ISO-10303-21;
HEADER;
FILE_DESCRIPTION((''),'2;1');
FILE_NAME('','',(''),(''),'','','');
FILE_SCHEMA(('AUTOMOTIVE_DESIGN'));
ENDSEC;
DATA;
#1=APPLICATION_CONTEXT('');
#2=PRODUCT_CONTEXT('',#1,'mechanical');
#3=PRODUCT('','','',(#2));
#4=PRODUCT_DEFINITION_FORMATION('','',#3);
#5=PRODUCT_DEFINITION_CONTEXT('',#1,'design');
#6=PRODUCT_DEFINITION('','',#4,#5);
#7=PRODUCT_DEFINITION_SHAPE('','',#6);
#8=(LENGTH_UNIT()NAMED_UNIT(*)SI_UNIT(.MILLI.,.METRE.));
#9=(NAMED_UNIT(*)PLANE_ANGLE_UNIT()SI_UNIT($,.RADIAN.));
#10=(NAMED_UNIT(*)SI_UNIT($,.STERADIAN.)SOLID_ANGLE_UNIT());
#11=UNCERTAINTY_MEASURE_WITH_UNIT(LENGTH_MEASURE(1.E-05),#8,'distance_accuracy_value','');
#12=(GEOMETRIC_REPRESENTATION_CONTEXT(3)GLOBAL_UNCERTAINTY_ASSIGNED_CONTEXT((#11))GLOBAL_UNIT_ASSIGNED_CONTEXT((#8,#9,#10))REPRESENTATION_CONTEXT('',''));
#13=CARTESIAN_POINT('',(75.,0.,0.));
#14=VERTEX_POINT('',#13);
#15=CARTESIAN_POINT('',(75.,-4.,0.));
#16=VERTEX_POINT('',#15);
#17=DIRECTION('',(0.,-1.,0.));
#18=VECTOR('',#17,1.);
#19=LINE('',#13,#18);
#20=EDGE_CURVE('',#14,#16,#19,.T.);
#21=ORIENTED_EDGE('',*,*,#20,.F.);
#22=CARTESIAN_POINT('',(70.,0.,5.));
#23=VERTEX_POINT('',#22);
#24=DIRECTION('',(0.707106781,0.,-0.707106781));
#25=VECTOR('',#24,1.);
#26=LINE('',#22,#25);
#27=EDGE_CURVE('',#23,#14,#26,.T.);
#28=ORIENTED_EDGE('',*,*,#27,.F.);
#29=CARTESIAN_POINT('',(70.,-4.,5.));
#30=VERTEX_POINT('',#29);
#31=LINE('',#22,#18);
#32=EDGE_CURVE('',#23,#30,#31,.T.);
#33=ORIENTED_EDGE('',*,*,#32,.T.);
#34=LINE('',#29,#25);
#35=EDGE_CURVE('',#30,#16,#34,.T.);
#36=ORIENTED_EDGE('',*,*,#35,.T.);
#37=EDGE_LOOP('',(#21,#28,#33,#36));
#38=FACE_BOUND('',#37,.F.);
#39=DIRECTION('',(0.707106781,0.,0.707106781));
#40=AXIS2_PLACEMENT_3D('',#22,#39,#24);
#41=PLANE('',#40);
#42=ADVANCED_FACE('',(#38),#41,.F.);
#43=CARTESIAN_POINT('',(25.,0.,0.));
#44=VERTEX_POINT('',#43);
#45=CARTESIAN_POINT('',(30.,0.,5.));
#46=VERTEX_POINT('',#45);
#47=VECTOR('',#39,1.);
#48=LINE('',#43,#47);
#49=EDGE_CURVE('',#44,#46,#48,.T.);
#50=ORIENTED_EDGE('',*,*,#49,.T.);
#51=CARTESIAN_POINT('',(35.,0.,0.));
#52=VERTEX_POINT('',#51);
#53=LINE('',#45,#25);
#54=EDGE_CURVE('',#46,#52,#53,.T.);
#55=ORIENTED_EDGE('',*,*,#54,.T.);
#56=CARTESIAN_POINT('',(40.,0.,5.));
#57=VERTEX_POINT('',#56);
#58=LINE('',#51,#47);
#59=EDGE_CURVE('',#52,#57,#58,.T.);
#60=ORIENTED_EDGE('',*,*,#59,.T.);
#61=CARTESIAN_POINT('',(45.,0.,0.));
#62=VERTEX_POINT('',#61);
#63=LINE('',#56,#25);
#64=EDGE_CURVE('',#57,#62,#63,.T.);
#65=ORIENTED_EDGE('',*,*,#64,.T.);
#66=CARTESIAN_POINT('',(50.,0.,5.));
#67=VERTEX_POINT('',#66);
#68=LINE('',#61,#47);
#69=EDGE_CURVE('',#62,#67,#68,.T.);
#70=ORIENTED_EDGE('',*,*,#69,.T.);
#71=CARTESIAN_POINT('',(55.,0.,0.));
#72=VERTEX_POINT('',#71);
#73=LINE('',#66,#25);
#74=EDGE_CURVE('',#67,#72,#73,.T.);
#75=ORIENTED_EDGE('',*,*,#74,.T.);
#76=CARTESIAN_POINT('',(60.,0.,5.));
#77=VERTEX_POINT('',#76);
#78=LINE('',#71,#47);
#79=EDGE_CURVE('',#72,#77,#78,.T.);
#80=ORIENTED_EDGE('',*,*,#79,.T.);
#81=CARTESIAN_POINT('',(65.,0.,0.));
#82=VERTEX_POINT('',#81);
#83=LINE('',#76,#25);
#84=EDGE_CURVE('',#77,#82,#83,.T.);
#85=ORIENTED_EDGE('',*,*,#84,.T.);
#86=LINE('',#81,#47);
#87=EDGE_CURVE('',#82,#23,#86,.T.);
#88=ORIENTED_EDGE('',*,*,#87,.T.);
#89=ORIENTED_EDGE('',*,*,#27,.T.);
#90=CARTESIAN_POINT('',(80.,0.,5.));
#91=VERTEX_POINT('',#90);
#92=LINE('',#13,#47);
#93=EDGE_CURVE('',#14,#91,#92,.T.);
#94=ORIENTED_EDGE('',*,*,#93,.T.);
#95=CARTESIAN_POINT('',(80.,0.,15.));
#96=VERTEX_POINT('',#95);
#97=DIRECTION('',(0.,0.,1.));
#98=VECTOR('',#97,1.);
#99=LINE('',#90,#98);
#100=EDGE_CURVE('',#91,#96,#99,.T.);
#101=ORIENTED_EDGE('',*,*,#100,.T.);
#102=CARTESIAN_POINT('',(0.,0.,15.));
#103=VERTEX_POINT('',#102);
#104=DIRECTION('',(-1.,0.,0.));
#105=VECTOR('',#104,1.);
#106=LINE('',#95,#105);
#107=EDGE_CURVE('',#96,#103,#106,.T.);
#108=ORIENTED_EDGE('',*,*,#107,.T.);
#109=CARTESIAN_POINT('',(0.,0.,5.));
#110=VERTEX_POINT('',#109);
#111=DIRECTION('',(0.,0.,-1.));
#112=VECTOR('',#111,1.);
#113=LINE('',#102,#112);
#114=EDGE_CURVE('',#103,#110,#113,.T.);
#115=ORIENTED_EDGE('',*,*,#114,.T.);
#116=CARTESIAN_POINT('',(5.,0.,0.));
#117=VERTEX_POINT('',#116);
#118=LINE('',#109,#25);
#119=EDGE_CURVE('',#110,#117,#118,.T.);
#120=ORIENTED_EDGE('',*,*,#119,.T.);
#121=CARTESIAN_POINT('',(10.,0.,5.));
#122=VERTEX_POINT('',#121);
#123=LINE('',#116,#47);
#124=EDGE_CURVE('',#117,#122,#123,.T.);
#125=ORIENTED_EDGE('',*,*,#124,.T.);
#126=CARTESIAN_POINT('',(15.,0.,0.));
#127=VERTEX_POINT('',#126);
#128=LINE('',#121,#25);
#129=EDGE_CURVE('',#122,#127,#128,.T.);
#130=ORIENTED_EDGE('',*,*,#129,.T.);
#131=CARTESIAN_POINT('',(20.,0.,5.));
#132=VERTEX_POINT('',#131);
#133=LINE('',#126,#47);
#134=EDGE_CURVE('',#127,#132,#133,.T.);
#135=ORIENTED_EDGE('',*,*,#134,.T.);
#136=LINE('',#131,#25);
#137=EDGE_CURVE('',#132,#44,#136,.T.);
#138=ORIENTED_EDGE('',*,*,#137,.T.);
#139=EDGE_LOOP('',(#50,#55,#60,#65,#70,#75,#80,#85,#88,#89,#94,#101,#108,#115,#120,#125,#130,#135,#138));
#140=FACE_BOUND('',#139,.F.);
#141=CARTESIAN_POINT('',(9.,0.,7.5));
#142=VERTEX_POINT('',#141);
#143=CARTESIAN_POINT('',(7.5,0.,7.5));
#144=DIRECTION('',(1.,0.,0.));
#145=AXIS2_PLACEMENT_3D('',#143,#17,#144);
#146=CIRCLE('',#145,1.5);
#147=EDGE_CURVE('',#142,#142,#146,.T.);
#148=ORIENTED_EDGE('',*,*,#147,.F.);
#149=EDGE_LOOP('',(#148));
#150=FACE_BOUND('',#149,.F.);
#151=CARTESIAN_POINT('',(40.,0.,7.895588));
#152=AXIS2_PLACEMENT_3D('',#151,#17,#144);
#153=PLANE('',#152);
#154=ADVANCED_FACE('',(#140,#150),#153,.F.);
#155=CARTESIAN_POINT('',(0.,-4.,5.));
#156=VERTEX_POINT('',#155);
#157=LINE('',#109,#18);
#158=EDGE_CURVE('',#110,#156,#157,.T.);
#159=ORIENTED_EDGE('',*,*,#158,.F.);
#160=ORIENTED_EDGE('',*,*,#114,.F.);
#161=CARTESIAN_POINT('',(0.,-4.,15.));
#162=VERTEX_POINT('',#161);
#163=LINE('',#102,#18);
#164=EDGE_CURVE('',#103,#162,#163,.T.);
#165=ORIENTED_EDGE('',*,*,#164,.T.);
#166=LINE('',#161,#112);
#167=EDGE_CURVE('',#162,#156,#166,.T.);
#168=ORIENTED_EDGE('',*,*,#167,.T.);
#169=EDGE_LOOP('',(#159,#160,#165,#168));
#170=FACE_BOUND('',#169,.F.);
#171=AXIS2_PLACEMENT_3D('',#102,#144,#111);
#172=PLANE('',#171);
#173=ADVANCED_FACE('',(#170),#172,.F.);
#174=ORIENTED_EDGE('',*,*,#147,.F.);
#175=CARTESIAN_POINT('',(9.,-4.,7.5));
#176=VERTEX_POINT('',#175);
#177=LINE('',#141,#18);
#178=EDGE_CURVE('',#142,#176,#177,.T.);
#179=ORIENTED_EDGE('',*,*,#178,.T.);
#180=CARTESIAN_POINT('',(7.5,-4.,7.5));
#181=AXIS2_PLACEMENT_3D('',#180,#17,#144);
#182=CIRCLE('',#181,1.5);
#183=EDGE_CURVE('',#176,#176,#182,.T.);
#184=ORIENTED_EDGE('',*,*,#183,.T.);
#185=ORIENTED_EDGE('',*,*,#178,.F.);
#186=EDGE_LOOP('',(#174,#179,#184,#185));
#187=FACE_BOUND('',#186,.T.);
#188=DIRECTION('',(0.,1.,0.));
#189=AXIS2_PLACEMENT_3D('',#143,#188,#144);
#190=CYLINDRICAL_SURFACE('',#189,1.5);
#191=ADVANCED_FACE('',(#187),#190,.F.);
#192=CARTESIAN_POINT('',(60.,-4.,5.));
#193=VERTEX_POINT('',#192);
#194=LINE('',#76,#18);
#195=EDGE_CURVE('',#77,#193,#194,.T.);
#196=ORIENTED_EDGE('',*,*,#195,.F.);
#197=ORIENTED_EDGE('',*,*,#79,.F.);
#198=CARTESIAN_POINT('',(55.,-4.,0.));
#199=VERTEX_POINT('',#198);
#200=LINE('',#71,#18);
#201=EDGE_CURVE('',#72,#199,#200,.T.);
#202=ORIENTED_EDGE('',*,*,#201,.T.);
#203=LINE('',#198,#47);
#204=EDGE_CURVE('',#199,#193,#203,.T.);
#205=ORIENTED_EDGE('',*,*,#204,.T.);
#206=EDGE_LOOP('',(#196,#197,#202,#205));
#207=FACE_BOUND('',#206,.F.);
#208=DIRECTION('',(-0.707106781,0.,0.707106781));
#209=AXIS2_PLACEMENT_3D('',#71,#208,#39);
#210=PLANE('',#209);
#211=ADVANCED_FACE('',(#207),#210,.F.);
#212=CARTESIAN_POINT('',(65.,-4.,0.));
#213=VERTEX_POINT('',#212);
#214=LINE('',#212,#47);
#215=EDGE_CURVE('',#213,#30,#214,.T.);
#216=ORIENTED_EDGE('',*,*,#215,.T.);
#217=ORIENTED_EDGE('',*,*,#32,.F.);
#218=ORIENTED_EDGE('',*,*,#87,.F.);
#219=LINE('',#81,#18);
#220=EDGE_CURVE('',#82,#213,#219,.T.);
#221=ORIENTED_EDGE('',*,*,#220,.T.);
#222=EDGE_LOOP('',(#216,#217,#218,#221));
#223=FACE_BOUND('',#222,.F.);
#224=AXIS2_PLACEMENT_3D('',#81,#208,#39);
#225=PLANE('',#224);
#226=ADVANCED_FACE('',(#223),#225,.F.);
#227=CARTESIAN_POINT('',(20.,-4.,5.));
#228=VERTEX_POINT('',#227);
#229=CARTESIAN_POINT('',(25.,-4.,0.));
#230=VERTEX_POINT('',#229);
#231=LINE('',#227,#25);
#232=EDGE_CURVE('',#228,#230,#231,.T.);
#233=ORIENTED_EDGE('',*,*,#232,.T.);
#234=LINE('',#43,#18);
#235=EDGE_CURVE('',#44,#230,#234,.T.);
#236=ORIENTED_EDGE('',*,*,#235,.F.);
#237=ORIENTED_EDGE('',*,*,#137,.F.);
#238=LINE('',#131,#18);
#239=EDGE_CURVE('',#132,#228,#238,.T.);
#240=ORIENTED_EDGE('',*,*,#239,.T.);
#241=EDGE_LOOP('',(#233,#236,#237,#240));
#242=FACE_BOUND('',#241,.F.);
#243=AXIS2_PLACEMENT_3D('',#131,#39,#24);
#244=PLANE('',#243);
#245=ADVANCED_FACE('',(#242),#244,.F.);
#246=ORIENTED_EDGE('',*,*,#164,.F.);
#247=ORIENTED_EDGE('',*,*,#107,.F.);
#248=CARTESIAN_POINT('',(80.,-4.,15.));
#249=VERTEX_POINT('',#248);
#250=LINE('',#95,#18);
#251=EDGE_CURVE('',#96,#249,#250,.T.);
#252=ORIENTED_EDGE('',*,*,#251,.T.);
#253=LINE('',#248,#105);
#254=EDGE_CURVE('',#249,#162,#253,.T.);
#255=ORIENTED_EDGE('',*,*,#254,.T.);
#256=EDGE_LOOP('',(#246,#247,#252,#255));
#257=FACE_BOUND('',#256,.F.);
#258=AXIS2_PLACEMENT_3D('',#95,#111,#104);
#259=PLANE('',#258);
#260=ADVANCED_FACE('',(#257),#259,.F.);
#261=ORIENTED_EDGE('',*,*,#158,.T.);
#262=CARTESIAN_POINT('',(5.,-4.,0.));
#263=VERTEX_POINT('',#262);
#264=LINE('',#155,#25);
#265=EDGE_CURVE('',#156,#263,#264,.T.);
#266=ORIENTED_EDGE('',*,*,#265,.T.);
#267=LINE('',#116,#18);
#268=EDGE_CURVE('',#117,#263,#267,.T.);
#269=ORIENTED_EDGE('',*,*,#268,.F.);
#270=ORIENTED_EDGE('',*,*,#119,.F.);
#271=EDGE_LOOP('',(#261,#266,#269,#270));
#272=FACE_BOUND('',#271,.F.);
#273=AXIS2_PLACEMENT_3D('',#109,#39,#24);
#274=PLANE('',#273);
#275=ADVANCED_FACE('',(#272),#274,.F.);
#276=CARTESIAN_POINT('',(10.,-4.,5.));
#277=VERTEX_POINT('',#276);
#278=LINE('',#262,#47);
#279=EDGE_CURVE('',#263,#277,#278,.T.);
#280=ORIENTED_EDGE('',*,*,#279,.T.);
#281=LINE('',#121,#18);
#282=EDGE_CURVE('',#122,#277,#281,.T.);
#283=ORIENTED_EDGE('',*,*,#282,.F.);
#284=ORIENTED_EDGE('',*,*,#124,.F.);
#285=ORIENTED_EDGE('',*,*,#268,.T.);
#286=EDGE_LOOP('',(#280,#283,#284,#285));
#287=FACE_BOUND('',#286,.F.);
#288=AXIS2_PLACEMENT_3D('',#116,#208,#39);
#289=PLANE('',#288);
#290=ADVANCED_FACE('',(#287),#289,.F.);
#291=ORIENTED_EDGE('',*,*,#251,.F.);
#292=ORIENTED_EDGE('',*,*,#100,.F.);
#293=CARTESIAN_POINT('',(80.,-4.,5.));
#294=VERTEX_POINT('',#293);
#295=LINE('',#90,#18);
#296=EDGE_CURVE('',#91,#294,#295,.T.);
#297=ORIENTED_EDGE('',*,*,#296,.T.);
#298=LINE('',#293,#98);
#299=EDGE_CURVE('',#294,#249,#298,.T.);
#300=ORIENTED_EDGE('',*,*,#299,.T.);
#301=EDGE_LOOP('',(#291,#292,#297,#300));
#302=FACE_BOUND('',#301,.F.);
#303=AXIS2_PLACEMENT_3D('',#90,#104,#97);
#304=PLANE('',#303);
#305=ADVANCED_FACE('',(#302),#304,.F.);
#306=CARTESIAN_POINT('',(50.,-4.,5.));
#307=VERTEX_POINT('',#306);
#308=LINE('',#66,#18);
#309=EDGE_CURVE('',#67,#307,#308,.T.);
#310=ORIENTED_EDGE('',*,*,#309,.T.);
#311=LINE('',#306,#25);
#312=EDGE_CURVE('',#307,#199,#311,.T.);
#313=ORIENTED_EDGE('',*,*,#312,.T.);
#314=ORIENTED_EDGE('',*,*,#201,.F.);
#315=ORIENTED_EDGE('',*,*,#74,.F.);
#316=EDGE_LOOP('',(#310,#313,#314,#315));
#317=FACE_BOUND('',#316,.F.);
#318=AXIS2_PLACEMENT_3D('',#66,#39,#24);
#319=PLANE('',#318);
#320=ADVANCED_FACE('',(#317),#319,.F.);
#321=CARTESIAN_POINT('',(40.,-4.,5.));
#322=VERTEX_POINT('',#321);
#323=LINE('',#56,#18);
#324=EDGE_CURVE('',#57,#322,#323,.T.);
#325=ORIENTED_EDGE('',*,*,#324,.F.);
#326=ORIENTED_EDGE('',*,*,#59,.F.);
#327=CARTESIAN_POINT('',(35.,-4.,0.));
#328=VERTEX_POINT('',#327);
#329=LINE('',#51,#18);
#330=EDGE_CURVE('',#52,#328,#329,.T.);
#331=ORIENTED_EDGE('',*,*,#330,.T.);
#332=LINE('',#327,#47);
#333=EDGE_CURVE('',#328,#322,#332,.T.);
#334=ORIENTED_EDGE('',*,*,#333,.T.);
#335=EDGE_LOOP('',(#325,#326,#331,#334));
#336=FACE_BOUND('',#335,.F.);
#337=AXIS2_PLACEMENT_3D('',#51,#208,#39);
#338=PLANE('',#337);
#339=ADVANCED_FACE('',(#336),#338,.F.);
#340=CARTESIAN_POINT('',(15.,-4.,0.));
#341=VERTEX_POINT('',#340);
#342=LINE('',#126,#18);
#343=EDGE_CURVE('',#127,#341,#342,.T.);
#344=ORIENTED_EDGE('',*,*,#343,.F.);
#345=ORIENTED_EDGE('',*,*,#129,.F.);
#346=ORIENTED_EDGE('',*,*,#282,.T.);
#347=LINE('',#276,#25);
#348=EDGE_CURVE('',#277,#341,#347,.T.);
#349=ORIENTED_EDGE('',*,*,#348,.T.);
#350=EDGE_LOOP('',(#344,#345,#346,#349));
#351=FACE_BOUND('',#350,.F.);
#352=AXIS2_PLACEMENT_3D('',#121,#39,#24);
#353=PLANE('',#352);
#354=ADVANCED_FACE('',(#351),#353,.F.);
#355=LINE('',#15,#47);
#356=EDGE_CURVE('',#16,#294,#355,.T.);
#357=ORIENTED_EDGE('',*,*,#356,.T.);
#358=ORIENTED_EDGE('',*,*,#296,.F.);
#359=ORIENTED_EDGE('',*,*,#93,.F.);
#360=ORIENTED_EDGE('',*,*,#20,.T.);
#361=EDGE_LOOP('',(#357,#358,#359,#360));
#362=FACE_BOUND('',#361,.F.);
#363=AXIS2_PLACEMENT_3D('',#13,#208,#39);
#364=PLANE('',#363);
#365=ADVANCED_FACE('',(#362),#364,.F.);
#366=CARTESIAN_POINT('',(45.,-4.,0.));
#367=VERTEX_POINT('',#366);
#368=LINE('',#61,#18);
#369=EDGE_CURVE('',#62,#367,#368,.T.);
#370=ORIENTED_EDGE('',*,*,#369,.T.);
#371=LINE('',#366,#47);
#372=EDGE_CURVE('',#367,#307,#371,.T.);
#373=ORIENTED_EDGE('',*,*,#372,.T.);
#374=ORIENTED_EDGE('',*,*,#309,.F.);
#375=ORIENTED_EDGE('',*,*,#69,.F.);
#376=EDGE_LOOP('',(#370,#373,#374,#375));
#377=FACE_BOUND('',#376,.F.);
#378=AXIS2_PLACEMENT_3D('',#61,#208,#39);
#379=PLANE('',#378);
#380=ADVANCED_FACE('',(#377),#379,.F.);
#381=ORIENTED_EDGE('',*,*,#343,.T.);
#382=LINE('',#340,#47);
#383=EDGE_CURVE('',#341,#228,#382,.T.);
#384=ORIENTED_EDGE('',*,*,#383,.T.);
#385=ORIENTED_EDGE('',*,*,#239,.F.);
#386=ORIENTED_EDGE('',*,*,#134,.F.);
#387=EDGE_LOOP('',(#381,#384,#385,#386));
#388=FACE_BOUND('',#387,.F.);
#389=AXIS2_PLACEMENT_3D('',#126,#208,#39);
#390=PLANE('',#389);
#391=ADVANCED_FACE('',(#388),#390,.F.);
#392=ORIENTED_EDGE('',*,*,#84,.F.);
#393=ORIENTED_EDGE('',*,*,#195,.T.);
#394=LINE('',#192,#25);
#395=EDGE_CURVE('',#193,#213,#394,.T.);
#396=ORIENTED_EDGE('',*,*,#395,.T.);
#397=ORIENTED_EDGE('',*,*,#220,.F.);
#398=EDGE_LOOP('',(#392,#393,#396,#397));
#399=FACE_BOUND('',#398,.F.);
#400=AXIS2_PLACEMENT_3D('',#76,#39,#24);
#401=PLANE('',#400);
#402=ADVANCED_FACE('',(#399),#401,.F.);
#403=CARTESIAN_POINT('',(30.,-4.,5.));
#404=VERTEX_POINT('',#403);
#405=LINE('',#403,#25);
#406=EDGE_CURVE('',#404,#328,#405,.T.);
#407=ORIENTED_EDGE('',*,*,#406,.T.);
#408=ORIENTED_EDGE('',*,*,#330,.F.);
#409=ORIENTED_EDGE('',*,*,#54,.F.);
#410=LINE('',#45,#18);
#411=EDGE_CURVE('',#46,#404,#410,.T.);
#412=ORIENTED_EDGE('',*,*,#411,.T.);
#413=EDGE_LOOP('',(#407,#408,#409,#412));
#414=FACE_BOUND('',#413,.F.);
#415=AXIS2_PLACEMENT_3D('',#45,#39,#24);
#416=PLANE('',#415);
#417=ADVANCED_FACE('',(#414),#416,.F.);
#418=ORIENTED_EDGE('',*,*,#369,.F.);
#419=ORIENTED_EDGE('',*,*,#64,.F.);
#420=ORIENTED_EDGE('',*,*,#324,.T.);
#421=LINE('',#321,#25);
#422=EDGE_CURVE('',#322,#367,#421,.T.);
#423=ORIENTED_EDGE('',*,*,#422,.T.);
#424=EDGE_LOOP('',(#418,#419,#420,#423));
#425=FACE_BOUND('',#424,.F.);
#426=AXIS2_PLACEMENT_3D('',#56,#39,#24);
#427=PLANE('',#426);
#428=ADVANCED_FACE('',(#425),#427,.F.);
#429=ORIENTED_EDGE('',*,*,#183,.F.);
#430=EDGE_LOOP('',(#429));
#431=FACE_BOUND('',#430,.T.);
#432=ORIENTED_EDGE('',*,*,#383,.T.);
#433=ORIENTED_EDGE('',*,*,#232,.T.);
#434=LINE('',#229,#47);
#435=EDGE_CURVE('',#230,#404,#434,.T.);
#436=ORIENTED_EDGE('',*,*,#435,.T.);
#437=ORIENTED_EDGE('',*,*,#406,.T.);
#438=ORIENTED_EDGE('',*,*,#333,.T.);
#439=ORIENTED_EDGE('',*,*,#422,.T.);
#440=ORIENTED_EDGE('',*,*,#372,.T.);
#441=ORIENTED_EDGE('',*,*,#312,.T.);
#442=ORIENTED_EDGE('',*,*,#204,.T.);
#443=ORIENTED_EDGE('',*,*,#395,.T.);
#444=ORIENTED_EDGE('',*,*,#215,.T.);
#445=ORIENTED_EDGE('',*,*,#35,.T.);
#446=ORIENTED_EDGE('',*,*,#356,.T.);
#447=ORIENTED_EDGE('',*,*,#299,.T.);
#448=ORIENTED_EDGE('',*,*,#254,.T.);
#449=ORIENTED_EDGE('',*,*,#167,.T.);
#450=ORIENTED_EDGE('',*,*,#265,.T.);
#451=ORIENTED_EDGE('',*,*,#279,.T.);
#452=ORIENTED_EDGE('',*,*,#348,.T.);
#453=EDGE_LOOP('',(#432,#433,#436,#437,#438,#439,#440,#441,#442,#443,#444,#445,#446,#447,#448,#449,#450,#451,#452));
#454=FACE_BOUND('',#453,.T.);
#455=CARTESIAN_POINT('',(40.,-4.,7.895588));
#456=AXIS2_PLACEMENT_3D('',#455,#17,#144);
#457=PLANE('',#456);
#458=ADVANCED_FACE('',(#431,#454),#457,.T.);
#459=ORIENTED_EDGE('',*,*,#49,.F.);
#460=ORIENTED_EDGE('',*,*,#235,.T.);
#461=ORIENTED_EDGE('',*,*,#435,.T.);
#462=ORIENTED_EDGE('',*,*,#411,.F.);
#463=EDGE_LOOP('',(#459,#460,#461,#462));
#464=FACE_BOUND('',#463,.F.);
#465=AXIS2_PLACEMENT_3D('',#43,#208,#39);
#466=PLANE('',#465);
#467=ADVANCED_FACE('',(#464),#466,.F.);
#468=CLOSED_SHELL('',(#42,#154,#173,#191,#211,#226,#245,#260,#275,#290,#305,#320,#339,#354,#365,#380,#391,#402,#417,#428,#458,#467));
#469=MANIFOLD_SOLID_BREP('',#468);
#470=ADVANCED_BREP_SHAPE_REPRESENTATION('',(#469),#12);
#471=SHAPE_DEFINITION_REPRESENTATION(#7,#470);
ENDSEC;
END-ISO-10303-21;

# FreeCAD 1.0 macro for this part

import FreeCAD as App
import Part
import Sketcher
Q = App.Units.Quantity

doc = App.newDocument("Part")
body = doc.addObject("PartDesign::Body", "Body")

# Sketch on XZ plane
sketch1 = body.newObject("Sketcher::SketchObject", "Sketch")
sketch1.AttachmentSupport = (doc.getObject("XZ_Plane"), [""])
sketch1.MapMode = "FlatFace"
sketch1.addGeometry([
    Part.LineSegment(App.Vector(80, 15, 0), App.Vector(0, 15, 0)),  # 0
    Part.LineSegment(App.Vector(0, 15, 0), App.Vector(0, 5, 0)),  # 1
    Part.LineSegment(App.Vector(0, 5, 0), App.Vector(5, 0, 0)),  # 2
    Part.LineSegment(App.Vector(5, 0, 0), App.Vector(10, 5, 0)),  # 3
    Part.LineSegment(App.Vector(10, 5, 0), App.Vector(15, 0, 0)),  # 4
    Part.LineSegment(App.Vector(15, 0, 0), App.Vector(20, 5, 0)),  # 5
    Part.LineSegment(App.Vector(20, 5, 0), App.Vector(25, 0, 0)),  # 6
    Part.LineSegment(App.Vector(25, 0, 0), App.Vector(30, 5, 0)),  # 7
    Part.LineSegment(App.Vector(30, 5, 0), App.Vector(35, 0, 0)),  # 8
    Part.LineSegment(App.Vector(35, 0, 0), App.Vector(40, 5, 0)),  # 9
    Part.LineSegment(App.Vector(40, 5, 0), App.Vector(45, 0, 0)),  # 10
    Part.LineSegment(App.Vector(45, 0, 0), App.Vector(50, 5, 0)),  # 11
    Part.LineSegment(App.Vector(50, 5, 0), App.Vector(55, 0, 0)),  # 12
    Part.LineSegment(App.Vector(55, 0, 0), App.Vector(60, 5, 0)),  # 13
    Part.LineSegment(App.Vector(60, 5, 0), App.Vector(65, 0, 0)),  # 14
    Part.LineSegment(App.Vector(65, 0, 0), App.Vector(70, 5, 0)),  # 15
    Part.LineSegment(App.Vector(70, 5, 0), App.Vector(75, 0, 0)),  # 16
    Part.LineSegment(App.Vector(75, 0, 0), App.Vector(80, 5, 0)),  # 17
    Part.LineSegment(App.Vector(80, 5, 0), App.Vector(80, 15, 0)),  # 18
    Part.Circle(App.Vector(7.5, 7.5, 0), App.Vector(0, 0, 1), 1.5),  # 19
], False)
sketch1.addConstraint([
    Sketcher.Constraint("Coincident", 0, 2, 1, 1),
    Sketcher.Constraint("Coincident", 1, 2, 2, 1),
    Sketcher.Constraint("Coincident", 2, 2, 3, 1),
    Sketcher.Constraint("Coincident", 3, 2, 4, 1),
    Sketcher.Constraint("Coincident", 4, 2, 5, 1),
    Sketcher.Constraint("Coincident", 5, 2, 6, 1),
    Sketcher.Constraint("Coincident", 6, 2, 7, 1),
    Sketcher.Constraint("Coincident", 7, 2, 8, 1),
    Sketcher.Constraint("Coincident", 8, 2, 9, 1),
    Sketcher.Constraint("Coincident", 9, 2, 10, 1),
    Sketcher.Constraint("Coincident", 10, 2, 11, 1),
    Sketcher.Constraint("Coincident", 11, 2, 12, 1),
    Sketcher.Constraint("Coincident", 12, 2, 13, 1),
    Sketcher.Constraint("Coincident", 13, 2, 14, 1),
    Sketcher.Constraint("Coincident", 14, 2, 15, 1),
    Sketcher.Constraint("Coincident", 15, 2, 16, 1),
    Sketcher.Constraint("Coincident", 16, 2, 17, 1),
    Sketcher.Constraint("Coincident", 17, 2, 18, 1),
    Sketcher.Constraint("Coincident", 18, 2, 0, 1),
    Sketcher.Constraint("Horizontal", 0),
    Sketcher.Constraint("Vertical", 1),
    Sketcher.Constraint("Vertical", 18),
    Sketcher.Constraint("PointOnObject", 0, 2, -2),
    Sketcher.Constraint("PointOnObject", 2, 2, -1),
    Sketcher.Constraint("PointOnObject", 4, 2, -1),
    Sketcher.Constraint("PointOnObject", 6, 2, -1),
    Sketcher.Constraint("PointOnObject", 8, 2, -1),
    Sketcher.Constraint("PointOnObject", 10, 2, -1),
    Sketcher.Constraint("PointOnObject", 12, 2, -1),
    Sketcher.Constraint("PointOnObject", 14, 2, -1),
    Sketcher.Constraint("PointOnObject", 16, 2, -1),
    Sketcher.Constraint("Perpendicular", 2, 3),
    Sketcher.Constraint("Perpendicular", 3, 4),
    Sketcher.Constraint("Perpendicular", 4, 5),
    Sketcher.Constraint("Perpendicular", 5, 6),
    Sketcher.Constraint("Perpendicular", 6, 7),
    Sketcher.Constraint("Perpendicular", 7, 8),
    Sketcher.Constraint("Perpendicular", 8, 9),
    Sketcher.Constraint("Perpendicular", 9, 10),
    Sketcher.Constraint("Perpendicular", 10, 11),
    Sketcher.Constraint("Perpendicular", 11, 12),
    Sketcher.Constraint("Perpendicular", 12, 13),
    Sketcher.Constraint("Perpendicular", 13, 14),
    Sketcher.Constraint("Perpendicular", 14, 15),
    Sketcher.Constraint("Perpendicular", 15, 16),
    Sketcher.Constraint("Perpendicular", 16, 17),
    Sketcher.Constraint("Horizontal", 1, 2, 3, 2),
    Sketcher.Constraint("Horizontal", 3, 2, 5, 2),
    Sketcher.Constraint("Horizontal", 5, 2, 7, 2),
    Sketcher.Constraint("Horizontal", 7, 2, 9, 2),
    Sketcher.Constraint("Horizontal", 9, 2, 11, 2),
    Sketcher.Constraint("Horizontal", 11, 2, 13, 2),
    Sketcher.Constraint("Horizontal", 13, 2, 15, 2),
    Sketcher.Constraint("Horizontal", 15, 2, 17, 2),
    Sketcher.Constraint("Equal", 2, 3),
    Sketcher.Constraint("Diameter", 19, Q("3 mm")),
    Sketcher.Constraint("DistanceX", 0, 2, 0, 1, Q("80 mm")),
    Sketcher.Constraint("DistanceY", 1, 2, 1, 1, Q("10 mm")),
    Sketcher.Constraint("DistanceX", -1, 1, 19, 3, Q("7.5 mm")),
    Sketcher.Constraint("DistanceY", -1, 1, 19, 3, Q("7.5 mm")),
])
pad1 = body.newObject("PartDesign::Pad", "Pad")
pad1.Profile = sketch1
pad1.Length = 4

doc.recompute()
